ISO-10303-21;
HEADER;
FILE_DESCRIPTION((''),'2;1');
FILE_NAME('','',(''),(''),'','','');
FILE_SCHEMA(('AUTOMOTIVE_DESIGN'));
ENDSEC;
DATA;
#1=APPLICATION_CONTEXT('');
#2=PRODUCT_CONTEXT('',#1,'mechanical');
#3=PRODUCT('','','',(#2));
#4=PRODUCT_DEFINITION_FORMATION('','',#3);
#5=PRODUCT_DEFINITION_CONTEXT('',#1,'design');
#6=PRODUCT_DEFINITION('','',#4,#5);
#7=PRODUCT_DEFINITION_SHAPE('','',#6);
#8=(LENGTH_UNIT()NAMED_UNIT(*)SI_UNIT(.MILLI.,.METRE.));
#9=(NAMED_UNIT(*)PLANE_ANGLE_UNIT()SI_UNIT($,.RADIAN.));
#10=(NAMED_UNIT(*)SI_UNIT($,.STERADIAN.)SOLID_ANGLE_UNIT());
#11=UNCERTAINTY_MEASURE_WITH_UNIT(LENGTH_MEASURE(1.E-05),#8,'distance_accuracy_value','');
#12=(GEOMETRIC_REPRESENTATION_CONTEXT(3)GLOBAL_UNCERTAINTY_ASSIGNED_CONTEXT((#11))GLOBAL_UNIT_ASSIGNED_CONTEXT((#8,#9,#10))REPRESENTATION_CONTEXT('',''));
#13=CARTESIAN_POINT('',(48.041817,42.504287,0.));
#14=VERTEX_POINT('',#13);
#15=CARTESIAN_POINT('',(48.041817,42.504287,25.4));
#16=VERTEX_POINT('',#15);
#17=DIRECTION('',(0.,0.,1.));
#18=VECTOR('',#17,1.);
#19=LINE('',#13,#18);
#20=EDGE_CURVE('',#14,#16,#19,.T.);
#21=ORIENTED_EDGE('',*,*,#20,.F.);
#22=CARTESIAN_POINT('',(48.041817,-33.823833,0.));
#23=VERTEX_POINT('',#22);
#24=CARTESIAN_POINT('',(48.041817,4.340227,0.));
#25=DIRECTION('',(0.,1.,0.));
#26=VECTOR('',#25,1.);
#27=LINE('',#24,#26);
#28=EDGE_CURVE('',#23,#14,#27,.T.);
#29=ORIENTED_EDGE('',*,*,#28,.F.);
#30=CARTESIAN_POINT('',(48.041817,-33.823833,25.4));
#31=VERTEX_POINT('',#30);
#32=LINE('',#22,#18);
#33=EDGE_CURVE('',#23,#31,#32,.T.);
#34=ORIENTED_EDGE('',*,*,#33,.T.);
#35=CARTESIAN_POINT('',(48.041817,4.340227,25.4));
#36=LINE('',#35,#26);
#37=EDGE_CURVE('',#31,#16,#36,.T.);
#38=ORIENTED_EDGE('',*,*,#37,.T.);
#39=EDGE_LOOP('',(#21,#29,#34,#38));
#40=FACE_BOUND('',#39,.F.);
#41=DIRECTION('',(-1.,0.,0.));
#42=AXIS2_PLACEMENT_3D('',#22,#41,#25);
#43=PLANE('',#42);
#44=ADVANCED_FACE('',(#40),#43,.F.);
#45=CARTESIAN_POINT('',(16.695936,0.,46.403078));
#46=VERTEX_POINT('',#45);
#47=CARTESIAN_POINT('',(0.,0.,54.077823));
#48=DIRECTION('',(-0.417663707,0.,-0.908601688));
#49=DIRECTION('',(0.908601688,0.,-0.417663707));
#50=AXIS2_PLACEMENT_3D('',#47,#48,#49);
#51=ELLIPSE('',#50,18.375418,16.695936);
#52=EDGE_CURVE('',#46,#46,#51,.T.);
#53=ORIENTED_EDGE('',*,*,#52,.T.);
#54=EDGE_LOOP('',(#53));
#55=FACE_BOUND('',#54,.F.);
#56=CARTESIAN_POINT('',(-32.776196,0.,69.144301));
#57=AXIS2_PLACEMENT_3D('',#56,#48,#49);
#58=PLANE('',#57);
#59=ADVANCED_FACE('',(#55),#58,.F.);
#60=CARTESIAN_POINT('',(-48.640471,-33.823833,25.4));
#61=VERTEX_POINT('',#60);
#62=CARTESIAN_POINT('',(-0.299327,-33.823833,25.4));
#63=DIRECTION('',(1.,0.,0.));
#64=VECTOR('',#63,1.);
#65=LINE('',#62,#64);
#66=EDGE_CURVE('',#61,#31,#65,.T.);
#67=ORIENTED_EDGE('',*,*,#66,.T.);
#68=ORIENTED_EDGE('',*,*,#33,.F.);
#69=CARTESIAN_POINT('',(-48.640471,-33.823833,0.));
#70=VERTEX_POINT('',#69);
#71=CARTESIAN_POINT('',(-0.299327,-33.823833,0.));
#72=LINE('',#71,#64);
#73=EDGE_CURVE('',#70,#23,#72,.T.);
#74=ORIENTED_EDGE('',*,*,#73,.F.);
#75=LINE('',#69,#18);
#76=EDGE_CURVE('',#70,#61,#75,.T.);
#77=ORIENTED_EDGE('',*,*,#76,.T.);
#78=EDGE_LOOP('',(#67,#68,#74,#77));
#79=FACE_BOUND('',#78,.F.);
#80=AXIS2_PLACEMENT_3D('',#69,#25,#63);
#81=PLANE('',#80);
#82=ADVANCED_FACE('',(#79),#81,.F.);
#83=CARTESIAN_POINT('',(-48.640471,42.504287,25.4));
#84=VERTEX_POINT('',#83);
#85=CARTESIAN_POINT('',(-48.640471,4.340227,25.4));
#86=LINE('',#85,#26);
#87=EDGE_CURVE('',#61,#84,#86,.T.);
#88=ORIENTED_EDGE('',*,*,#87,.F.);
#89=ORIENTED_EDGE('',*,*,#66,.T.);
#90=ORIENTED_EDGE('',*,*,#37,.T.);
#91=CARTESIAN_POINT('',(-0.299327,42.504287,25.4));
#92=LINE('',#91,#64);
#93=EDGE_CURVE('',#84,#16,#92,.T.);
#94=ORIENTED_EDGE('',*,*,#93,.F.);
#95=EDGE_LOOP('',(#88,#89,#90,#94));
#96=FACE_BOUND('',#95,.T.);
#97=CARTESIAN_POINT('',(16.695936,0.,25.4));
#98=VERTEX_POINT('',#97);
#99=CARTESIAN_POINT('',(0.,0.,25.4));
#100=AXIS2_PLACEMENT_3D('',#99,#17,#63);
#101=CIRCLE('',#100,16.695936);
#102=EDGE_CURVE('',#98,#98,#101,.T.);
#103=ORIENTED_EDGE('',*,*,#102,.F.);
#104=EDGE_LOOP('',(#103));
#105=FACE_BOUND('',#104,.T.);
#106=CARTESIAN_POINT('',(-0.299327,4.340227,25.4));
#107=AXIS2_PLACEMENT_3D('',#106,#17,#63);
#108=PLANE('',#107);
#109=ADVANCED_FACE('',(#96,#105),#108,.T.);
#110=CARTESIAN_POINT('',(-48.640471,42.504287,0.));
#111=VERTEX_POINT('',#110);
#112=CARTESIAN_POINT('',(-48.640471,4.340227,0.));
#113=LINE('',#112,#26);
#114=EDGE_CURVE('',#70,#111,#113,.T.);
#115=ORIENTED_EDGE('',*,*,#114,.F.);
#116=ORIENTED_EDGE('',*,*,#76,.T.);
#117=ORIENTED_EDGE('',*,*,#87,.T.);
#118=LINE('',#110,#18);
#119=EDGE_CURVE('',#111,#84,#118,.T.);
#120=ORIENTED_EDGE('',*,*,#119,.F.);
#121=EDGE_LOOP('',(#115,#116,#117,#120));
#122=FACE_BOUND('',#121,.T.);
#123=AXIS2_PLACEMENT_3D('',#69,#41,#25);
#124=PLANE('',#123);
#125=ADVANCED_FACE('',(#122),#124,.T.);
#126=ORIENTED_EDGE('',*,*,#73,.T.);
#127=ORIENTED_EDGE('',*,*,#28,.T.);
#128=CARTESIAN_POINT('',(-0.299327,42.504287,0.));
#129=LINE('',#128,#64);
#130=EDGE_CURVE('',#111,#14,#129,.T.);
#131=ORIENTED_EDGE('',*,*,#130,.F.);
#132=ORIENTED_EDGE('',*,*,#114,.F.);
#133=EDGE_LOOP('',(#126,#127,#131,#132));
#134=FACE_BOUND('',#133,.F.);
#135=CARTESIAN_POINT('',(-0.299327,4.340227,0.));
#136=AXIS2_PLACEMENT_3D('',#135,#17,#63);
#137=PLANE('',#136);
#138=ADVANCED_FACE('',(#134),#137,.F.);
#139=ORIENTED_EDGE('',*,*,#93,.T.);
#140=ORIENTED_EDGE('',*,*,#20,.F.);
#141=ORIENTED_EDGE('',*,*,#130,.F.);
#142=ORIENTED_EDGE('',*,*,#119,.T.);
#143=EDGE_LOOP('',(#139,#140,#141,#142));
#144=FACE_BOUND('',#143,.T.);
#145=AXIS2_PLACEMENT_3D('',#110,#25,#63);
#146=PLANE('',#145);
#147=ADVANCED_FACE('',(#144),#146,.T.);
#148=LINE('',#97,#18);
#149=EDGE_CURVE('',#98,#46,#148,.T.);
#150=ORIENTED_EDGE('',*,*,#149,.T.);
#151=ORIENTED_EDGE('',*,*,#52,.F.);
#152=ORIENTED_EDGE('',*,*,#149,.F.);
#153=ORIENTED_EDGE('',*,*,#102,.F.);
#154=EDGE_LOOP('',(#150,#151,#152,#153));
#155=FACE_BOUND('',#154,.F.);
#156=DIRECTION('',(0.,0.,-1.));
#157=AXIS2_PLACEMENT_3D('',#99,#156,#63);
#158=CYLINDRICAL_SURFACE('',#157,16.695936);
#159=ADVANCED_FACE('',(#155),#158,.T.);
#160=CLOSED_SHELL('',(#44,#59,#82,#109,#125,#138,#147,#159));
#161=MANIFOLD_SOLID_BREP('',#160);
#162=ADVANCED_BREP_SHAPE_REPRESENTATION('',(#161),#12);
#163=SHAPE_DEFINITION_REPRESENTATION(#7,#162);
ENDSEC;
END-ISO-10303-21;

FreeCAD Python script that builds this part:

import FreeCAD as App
import Part
import Sketcher

V = App.Vector
Q = App.Units.Quantity

doc = App.newDocument("Part")
body = doc.addObject("PartDesign::Body", "Body")

sketch1 = body.newObject("Sketcher::SketchObject", "Sketch")
sketch1.AttachmentSupport = (doc.getObject("XY_Plane"), [""])
sketch1.MapMode = "FlatFace"
sketch1.addGeometry([
    Part.LineSegment(V(-49, 43, 0), V(-49, -34, 0)),
    Part.LineSegment(V(-49, -34, 0), V(48, -34, 0)),
    Part.LineSegment(V(48, -34, 0), V(48, 43, 0)),
    Part.LineSegment(V(48, 43, 0), V(-49, 43, 0)),
], False)
sketch1.addConstraint([
    Sketcher.Constraint("Coincident", 0, 2, 1, 1),
    Sketcher.Constraint("Coincident", 1, 2, 2, 1),
    Sketcher.Constraint("Coincident", 2, 2, 3, 1),
    Sketcher.Constraint("Coincident", 3, 2, 0, 1),
    Sketcher.Constraint("Vertical", 0),
    Sketcher.Constraint("Horizontal", 1),
    Sketcher.Constraint("Vertical", 2),
    Sketcher.Constraint("Horizontal", 3),
    Sketcher.Constraint("DistanceX", 1, 1, 1, 2, 96.682288),
    Sketcher.Constraint("DistanceY", 0, 2, 0, 1, 76.328121),
    Sketcher.Constraint("DistanceX", 0, 2, -1, 1, 48.640471),
    Sketcher.Constraint("DistanceY", 0, 2, -1, 1, 33.823833),
])
pad1 = body.newObject("PartDesign::Pad", "Pad")
pad1.Profile = sketch1
pad1.Length = Q("1 in")

sketch2 = body.newObject("Sketcher::SketchObject", "Sketch001")
sketch2.AttachmentSupport = (doc.getObject("XY_Plane"), [""])
sketch2.MapMode = "FlatFace"
sketch2.AttachmentOffset = App.Placement(V(0, 0, 1 * 25.4), App.Rotation())
sketch2.addGeometry(Part.Circle(V(0, 0, 0), V(0, 0, 1), 17), False)
sketch2.addConstraint([
    Sketcher.Constraint("Coincident", 0, 3, -1, 1),
    Sketcher.Constraint("Diameter", 0, 33.391872),
])
pad2 = body.newObject("PartDesign::Pad", "Pad001")
pad2.Profile = sketch2
pad2.Length = Q("1.5 in")

sketch3 = body.newObject("Sketcher::SketchObject", "Sketch002")
sketch3.AttachmentSupport = (doc.getObject("XZ_Plane"), [""])
sketch3.MapMode = "FlatFace"
sketch3.addGeometry([
    Part.LineSegment(V(41, 69, 0), V(-33, 69, 0)),
    Part.LineSegment(V(-33, 69, 0), V(41, 35, 0)),
    Part.LineSegment(V(41, 35, 0), V(41, 69, 0)),
], False)
sketch3.addConstraint([
    Sketcher.Constraint("Coincident", 0, 2, 1, 1),
    Sketcher.Constraint("Coincident", 1, 2, 2, 1),
    Sketcher.Constraint("Coincident", 2, 2, 0, 1),
    Sketcher.Constraint("Horizontal", 0),
    Sketcher.Constraint("Vertical", 2),
    Sketcher.Constraint("DistanceY", -1, 1, 0, 2, 69.144301),
    Sketcher.Constraint("DistanceX", 0, 2, 0, 1, 74.232843),
    Sketcher.Constraint("DistanceY", 2, 1, 2, 2, 34.123164),
    Sketcher.Constraint("DistanceX", 0, 2, -1, 1, 32.776196),
])
pocket1 = body.newObject("PartDesign::Pocket", "Pocket")
pocket1.Profile = sketch3
pocket1.Length = Q("3 in")
pocket1.Midplane = True

doc.recompute()
